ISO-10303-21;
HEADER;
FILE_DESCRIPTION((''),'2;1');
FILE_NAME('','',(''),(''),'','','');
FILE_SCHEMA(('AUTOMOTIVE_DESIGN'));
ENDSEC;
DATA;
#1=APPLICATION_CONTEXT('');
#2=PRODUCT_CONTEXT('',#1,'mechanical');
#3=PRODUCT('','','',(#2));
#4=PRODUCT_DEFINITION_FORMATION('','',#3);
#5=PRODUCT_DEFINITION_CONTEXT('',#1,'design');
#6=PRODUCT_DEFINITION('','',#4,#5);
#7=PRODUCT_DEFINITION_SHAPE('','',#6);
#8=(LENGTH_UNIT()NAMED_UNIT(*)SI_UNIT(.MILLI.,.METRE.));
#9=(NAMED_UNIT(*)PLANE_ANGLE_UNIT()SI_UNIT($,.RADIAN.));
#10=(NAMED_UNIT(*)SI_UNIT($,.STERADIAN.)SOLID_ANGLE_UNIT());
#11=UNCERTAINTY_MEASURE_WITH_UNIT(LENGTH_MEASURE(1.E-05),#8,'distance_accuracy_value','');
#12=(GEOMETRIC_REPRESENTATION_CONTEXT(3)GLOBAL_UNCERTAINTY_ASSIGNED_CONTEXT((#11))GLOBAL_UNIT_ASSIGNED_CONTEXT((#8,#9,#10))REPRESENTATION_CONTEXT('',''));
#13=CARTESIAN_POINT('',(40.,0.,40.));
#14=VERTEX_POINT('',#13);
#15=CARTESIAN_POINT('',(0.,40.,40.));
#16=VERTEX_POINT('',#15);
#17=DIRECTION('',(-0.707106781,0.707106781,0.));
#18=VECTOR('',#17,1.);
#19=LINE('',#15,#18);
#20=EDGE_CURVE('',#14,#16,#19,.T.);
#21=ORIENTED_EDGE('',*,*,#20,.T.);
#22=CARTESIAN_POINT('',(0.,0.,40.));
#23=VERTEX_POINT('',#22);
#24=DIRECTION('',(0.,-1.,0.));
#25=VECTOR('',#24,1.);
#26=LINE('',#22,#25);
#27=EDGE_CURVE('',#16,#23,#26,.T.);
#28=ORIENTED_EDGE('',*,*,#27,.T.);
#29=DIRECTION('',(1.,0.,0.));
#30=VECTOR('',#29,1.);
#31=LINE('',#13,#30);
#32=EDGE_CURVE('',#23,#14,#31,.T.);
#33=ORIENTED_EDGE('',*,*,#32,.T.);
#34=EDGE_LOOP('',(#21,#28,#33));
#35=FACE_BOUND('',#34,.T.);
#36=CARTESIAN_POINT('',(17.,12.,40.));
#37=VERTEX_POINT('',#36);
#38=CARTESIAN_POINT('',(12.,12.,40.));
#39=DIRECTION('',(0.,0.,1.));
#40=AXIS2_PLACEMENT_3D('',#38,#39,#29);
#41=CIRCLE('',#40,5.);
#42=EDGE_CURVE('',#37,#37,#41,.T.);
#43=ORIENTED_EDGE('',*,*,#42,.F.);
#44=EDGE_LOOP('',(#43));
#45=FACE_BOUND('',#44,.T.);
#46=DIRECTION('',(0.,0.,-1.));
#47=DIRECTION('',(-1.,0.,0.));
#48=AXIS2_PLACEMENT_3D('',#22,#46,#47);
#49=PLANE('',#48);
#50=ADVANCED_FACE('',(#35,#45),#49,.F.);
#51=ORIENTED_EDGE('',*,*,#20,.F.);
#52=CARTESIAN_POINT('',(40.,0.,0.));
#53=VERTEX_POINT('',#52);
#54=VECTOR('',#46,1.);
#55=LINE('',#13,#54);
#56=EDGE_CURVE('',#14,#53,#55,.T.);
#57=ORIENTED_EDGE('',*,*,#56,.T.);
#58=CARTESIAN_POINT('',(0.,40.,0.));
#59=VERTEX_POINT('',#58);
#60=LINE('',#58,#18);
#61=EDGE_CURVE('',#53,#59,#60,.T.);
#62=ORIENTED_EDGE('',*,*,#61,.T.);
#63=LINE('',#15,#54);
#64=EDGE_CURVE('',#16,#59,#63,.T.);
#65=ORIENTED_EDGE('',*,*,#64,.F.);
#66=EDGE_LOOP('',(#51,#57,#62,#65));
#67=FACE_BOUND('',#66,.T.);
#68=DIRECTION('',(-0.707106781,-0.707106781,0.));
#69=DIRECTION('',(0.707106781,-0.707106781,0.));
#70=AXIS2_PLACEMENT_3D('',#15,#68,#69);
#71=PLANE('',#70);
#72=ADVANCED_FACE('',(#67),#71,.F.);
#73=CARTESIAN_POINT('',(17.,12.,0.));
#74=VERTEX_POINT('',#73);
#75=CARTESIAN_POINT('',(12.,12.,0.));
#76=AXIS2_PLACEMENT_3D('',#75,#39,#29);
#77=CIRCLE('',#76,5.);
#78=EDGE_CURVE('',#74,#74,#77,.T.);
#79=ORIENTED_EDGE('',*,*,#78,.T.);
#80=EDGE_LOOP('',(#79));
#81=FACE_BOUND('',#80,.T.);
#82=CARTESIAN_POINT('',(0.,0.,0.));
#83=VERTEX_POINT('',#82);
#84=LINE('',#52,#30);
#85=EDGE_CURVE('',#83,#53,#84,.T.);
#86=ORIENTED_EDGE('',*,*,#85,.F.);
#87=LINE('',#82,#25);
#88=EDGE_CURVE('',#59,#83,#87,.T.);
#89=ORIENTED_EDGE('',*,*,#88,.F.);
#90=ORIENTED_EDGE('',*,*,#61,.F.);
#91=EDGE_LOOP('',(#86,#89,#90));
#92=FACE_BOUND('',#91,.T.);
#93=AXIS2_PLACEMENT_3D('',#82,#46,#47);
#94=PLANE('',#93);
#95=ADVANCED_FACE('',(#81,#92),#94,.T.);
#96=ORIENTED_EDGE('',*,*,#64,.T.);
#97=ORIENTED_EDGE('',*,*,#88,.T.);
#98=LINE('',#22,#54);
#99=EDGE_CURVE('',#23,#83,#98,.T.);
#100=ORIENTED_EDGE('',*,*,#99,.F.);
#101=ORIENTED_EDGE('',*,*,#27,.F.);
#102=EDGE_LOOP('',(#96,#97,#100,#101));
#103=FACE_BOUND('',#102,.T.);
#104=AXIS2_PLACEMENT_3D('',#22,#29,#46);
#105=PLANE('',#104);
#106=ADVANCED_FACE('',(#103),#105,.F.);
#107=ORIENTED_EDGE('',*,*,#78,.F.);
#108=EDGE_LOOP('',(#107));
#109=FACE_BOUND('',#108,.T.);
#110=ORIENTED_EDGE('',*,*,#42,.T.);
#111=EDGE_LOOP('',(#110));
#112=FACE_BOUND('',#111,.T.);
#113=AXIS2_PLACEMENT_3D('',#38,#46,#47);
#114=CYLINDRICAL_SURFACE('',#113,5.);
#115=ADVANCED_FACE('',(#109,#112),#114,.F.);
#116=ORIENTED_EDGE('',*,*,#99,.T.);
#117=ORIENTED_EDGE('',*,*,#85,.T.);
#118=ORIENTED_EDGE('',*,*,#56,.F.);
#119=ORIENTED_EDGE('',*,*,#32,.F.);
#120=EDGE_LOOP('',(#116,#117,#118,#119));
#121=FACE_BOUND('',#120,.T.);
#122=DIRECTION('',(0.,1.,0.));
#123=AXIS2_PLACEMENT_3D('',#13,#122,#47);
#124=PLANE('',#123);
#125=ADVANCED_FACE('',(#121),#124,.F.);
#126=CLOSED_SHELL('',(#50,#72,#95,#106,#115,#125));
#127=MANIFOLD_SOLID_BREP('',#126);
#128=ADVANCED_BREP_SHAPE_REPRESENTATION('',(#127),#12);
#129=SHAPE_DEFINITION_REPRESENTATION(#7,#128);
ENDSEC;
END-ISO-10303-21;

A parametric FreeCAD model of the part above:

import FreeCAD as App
import Part
import Sketcher

V = App.Vector


def add_polygon(sketch, points):
    """Adds a closed chain of lines whose ends are joined by coincident constraints."""
    first, n = sketch.GeometryCount, len(points)
    for a, b in zip(points, points[1:] + points[:1]):
        sketch.addGeometry(Part.LineSegment(App.Vector(*a, 0), App.Vector(*b, 0)), False)
    for i in range(n):
        sketch.addConstraint(Sketcher.Constraint("Coincident", first + i, 2, first + (i + 1) % n, 1))

doc = App.newDocument("Part")
body = doc.addObject("PartDesign::Body", "Body")

# Sketch on XY plane
sketch1 = doc.addObject("Sketcher::SketchObject", "Sketch")
body.addObject(sketch1)
sketch1.AttachmentSupport = (doc.XY_Plane, [""])
sketch1.MapMode = "FlatFace"
add_polygon(sketch1, [(0, 40), (0, 0), (40, 0)])  # lines 0-2
sketch1.addGeometry(Part.Circle(V(12, 12, 0), V(0, 0, 1), 5), False)  # 3
sketch1.addConstraint([
    Sketcher.Constraint("Vertical", 0),
    Sketcher.Constraint("Horizontal", 1),
    Sketcher.Constraint("Coincident", 0, 2, -1, 1),
    Sketcher.Constraint("Equal", 1, 0),
    Sketcher.Constraint("Diameter", 3, 10.0),
    Sketcher.Constraint("DistanceX", 1, 1, 1, 2, 40.0),
    Sketcher.Constraint("DistanceX", -1, 1, 3, 3, 12.0),
    Sketcher.Constraint("DistanceY", -1, 1, 3, 3, 12.0),
])
pad1 = doc.addObject("PartDesign::Pad", "Pad")
body.addObject(pad1)
pad1.Profile = sketch1
pad1.Length = 40

doc.recompute()
